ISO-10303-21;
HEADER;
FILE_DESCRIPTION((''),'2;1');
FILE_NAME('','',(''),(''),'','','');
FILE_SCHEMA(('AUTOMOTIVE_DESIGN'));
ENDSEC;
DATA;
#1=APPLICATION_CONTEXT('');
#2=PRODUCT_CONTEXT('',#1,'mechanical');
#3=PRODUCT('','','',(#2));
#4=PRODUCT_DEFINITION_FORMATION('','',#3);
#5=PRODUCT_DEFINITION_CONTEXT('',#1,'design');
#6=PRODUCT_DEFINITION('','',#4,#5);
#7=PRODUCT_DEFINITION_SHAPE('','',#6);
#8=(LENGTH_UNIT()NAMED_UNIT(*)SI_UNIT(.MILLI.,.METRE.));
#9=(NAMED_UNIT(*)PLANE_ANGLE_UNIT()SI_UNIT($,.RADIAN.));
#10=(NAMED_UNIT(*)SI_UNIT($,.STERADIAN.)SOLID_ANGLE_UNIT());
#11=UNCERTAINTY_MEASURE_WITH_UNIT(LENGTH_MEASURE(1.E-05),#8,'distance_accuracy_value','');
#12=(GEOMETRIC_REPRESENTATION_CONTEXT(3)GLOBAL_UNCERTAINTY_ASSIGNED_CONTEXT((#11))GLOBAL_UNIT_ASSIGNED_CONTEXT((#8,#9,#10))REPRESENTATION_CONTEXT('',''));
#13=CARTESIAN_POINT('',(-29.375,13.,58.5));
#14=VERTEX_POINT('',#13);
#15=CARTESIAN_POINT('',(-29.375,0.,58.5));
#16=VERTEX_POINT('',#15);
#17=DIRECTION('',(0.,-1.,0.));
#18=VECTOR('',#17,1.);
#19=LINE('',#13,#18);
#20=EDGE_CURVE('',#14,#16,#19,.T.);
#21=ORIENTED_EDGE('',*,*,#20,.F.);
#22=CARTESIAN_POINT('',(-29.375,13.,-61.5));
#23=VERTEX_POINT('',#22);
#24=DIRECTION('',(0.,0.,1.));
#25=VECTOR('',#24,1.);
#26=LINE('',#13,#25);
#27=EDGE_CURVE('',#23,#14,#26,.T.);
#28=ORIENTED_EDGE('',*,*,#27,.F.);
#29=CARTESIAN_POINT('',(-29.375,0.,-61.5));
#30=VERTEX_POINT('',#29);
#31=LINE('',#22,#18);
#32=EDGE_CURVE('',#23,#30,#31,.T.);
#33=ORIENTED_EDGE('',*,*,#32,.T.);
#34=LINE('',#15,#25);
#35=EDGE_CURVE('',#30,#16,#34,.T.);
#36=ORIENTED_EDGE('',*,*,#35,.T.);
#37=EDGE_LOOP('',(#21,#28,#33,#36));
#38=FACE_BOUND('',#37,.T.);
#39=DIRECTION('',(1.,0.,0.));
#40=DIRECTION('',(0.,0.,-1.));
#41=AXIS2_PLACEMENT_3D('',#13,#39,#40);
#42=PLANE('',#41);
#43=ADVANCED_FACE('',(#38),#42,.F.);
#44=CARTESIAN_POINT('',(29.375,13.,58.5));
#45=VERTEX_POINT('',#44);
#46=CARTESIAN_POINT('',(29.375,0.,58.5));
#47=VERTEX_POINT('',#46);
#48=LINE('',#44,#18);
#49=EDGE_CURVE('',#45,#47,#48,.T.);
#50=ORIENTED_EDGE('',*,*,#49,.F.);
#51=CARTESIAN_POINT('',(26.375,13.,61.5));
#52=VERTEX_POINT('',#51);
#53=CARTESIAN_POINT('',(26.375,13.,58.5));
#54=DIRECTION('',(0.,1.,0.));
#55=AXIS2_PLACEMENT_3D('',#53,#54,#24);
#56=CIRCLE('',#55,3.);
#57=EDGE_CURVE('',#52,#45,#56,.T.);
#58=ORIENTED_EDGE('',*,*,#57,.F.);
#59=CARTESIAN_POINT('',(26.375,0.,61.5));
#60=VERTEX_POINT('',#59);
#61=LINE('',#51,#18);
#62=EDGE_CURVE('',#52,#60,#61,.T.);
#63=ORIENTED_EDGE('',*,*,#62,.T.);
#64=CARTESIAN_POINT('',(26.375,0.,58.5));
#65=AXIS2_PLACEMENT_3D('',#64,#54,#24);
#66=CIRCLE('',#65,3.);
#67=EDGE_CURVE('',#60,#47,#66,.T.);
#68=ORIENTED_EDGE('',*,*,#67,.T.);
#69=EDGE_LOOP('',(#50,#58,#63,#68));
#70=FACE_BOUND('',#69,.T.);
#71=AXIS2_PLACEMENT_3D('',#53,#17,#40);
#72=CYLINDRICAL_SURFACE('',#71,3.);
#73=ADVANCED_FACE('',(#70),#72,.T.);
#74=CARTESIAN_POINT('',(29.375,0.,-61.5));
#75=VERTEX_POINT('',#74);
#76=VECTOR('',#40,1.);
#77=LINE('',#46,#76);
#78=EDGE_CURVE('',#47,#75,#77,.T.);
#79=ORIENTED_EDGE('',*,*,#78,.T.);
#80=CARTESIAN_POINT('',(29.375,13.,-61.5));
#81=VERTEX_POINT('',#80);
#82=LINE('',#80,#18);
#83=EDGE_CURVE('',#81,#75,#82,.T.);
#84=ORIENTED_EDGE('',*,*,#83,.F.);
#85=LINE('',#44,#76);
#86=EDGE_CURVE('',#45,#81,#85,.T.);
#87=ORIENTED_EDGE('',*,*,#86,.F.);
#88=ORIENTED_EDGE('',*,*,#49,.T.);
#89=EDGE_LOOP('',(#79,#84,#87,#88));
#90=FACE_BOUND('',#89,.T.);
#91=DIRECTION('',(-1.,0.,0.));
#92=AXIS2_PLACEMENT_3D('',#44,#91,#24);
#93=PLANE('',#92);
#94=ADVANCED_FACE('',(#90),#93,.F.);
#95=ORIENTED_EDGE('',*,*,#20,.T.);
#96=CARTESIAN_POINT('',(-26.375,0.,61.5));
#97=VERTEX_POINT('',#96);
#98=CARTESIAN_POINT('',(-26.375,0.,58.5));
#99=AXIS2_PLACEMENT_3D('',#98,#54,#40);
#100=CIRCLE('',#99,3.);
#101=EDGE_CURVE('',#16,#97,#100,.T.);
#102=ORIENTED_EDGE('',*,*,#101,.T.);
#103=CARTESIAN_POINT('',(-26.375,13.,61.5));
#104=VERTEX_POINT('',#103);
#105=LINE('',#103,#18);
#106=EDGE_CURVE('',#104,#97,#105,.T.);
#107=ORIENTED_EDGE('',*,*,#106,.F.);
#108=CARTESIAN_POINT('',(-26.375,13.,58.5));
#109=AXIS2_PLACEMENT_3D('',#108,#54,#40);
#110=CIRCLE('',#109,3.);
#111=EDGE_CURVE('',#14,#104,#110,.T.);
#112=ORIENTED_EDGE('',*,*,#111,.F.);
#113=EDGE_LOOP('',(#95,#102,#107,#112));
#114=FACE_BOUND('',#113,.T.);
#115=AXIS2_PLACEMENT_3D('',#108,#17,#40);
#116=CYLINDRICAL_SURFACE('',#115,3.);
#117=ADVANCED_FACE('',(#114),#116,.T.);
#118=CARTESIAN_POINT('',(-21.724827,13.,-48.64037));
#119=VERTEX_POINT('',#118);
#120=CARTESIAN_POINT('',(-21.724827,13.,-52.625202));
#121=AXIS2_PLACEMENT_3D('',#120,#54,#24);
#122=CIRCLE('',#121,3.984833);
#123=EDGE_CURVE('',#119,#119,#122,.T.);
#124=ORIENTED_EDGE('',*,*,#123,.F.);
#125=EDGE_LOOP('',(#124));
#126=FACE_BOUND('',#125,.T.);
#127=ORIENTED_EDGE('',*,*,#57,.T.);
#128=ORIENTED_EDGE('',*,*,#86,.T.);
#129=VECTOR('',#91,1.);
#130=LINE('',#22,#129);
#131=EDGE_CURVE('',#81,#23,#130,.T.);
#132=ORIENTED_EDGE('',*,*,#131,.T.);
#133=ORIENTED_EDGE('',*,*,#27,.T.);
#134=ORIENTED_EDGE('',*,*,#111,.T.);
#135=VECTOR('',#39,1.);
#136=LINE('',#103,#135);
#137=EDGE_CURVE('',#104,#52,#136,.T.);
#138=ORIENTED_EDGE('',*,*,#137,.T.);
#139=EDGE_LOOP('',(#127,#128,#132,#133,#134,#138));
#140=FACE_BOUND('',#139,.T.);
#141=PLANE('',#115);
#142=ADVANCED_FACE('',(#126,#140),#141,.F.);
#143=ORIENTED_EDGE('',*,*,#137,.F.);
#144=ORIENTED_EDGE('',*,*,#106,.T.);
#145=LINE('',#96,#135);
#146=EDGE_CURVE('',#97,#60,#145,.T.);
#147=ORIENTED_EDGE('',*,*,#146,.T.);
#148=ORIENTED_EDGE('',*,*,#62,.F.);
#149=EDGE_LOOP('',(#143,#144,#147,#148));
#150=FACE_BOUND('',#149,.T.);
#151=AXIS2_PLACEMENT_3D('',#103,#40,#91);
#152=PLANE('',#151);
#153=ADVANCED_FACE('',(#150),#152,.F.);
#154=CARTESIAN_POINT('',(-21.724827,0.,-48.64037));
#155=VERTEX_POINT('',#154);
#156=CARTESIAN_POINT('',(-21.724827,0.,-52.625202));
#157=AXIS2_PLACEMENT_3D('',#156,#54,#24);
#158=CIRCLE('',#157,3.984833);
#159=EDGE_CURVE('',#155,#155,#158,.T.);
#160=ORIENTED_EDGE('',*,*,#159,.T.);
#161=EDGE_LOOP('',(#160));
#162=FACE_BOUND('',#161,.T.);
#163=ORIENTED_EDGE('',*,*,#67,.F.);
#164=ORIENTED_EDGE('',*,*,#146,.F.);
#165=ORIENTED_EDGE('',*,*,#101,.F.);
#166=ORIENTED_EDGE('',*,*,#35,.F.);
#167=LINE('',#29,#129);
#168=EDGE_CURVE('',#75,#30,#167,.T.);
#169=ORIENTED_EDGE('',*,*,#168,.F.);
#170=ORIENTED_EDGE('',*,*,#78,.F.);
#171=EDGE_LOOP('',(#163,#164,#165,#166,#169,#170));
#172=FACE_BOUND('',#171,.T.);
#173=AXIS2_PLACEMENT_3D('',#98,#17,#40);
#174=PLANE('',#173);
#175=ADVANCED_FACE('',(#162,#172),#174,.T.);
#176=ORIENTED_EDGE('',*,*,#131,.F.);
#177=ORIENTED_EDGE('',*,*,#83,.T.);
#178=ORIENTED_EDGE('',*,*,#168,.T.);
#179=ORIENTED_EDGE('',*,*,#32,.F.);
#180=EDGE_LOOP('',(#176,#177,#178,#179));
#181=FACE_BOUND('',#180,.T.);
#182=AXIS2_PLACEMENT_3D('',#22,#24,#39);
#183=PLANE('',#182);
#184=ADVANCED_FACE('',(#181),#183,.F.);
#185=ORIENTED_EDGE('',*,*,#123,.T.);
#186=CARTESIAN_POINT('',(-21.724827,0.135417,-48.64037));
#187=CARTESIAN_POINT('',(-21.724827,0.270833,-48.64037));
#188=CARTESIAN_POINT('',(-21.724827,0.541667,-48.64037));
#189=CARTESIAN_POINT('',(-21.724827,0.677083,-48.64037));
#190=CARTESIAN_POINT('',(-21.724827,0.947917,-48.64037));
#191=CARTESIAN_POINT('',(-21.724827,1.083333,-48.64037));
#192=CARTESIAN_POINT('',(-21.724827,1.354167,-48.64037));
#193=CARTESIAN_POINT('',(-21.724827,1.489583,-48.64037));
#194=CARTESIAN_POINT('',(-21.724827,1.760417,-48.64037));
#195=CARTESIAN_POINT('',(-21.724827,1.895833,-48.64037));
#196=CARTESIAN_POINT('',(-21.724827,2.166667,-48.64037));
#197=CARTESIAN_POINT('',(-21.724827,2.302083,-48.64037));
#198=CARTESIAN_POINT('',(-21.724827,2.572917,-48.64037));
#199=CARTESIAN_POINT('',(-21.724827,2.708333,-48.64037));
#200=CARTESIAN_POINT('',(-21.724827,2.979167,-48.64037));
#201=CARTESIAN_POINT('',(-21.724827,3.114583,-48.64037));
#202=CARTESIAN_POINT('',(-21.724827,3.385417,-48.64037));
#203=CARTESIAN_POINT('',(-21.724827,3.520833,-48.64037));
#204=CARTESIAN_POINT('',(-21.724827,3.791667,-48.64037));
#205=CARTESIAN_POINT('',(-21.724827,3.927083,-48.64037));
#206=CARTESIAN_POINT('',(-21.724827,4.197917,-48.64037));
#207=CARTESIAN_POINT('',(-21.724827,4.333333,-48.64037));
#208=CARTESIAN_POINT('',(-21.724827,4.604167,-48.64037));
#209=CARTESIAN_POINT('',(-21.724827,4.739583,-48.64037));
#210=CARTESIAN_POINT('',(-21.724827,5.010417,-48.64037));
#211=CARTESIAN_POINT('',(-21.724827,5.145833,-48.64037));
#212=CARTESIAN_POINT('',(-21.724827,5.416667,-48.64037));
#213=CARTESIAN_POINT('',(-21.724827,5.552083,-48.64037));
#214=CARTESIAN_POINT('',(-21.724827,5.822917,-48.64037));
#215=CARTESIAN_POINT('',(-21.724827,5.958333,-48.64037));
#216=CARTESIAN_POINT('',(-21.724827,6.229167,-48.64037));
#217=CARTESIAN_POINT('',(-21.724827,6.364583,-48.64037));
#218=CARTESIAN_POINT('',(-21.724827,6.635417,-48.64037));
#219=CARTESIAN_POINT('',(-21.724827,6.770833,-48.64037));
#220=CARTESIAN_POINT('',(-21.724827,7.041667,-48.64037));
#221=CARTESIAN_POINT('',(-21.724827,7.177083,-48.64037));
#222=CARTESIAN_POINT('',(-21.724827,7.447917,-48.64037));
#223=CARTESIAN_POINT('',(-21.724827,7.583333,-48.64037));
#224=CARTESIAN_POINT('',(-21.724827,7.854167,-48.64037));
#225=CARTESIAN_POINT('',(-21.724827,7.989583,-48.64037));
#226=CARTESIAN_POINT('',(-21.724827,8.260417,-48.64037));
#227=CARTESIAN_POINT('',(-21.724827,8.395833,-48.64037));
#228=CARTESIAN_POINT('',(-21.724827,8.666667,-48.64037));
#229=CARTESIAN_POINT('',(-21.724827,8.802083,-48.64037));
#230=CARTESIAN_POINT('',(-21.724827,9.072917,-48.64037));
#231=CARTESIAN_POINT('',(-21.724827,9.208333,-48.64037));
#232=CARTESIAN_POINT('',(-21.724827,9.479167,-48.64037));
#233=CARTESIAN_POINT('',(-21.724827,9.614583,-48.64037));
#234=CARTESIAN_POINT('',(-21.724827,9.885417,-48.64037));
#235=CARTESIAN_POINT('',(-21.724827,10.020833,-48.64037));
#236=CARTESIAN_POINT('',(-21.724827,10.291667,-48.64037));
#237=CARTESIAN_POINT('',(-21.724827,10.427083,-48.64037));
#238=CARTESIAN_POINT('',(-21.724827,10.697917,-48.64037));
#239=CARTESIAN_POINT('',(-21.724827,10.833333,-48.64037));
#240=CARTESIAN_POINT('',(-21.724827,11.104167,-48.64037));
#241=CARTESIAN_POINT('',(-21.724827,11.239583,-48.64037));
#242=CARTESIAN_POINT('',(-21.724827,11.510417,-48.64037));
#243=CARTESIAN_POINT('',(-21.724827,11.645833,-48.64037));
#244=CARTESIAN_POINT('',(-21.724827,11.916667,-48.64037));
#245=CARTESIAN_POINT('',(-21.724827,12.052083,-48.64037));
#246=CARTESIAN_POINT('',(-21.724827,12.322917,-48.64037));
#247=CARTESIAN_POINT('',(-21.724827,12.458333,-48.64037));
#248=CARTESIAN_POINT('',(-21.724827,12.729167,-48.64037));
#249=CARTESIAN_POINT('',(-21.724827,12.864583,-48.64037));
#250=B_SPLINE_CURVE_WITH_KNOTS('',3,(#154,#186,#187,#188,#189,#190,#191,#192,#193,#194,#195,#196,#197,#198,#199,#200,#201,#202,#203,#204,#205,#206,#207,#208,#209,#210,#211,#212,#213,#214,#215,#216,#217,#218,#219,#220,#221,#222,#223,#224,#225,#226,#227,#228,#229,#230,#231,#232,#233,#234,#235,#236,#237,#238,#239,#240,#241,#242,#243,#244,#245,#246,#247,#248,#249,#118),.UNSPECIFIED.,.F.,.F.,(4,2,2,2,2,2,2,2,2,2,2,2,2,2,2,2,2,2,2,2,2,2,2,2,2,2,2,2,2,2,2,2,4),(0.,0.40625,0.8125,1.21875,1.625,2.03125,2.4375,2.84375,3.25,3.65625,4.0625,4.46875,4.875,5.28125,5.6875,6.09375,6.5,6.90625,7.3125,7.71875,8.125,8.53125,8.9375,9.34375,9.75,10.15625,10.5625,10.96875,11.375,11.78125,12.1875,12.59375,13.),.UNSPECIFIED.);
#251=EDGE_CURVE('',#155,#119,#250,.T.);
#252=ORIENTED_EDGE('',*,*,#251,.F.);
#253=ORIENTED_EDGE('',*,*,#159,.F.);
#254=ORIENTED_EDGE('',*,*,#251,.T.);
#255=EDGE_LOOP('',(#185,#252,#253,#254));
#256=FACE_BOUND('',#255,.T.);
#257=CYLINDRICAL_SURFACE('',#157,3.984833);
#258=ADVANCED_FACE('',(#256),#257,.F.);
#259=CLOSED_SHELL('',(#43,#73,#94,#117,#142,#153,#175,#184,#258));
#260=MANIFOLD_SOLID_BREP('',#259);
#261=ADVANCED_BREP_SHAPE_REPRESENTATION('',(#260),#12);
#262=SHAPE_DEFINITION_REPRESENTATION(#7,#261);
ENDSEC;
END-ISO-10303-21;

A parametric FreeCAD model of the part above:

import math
import FreeCAD as App
import Part
import Sketcher
Q = App.Units.Quantity

doc = App.newDocument("Part")
body = doc.addObject("PartDesign::Body", "Body")

# Sketch on XZ plane
sketch1 = body.newObject("Sketcher::SketchObject", "Sketch")
sketch1.AttachmentSupport = (doc.getObject("XZ_Plane"), [""])
sketch1.MapMode = "FlatFace"
sketch1.addGeometry([
    Part.LineSegment(App.Vector(-26.4, 61.5, 0), App.Vector(26.4, 61.5, 0)),  # 0
    Part.ArcOfCircle(Part.Circle(App.Vector(26.4, 58.5, 0), App.Vector(0, 0, 1), 3), math.radians(0), math.radians(90)),  # 1
    Part.LineSegment(App.Vector(29.4, 58.5, 0), App.Vector(29.4, -61.5, 0)),  # 2
    Part.LineSegment(App.Vector(29.4, -61.5, 0), App.Vector(-29.4, -61.5, 0)),  # 3
    Part.LineSegment(App.Vector(-29.4, -61.5, 0), App.Vector(-29.4, 58.5, 0)),  # 4
    Part.ArcOfCircle(Part.Circle(App.Vector(-26.4, 58.5, 0), App.Vector(0, 0, 1), 3), math.radians(90), math.radians(180)),  # 5
], False)
sketch1.addConstraint([
    Sketcher.Constraint("Tangent", 0, 2, 1, 2),
    Sketcher.Constraint("Tangent", 1, 1, 2, 1),
    Sketcher.Constraint("Coincident", 2, 2, 3, 1),
    Sketcher.Constraint("Coincident", 3, 2, 4, 1),
    Sketcher.Constraint("Tangent", 4, 2, 5, 2),
    Sketcher.Constraint("Tangent", 5, 1, 0, 1),
    Sketcher.Constraint("Horizontal", 0),
    Sketcher.Constraint("Vertical", 2),
    Sketcher.Constraint("Horizontal", 3),
    Sketcher.Constraint("Vertical", 4),
    Sketcher.Constraint("Equal", 1, 5),
    Sketcher.Constraint("Radius", 1, Q("3 mm")),
    Sketcher.Constraint("DistanceY", 2, 2, 2, 1, Q("120 mm")),
    Sketcher.Constraint("DistanceX", 0, 1, 0, 2, Q("52.75 mm")),
    Sketcher.Constraint("DistanceY", -1, 1, 1, 3, Q("58.5 mm")),
    Sketcher.Constraint("DistanceX", -1, 1, 1, 3, Q("26.375 mm")),
])
pad1 = body.newObject("PartDesign::Pad", "Pad")
pad1.Profile = sketch1
pad1.Length = 13
pad1.Reversed = True

# Sketch on XZ plane
sketch2 = body.newObject("Sketcher::SketchObject", "Sketch001")
sketch2.AttachmentSupport = (doc.getObject("XZ_Plane"), [""])
sketch2.MapMode = "FlatFace"
sketch2.AttachmentOffset = App.Placement(App.Vector(0, 0, -13), App.Rotation())
sketch2.addGeometry(Part.Circle(App.Vector(-21.7, -52.6, 0), App.Vector(0, 0, 1), 4), False)
sketch2.addConstraint([
    Sketcher.Constraint("Diameter", 0, Q("7.969665 mm")),
    Sketcher.Constraint("DistanceX", 0, 3, -1, 1, Q("21.724827 mm")),
    Sketcher.Constraint("DistanceY", 0, 3, -1, 1, Q("52.625202 mm")),
])
pocket1 = body.newObject("PartDesign::Pocket", "Pocket")
pocket1.Profile = sketch2
pocket1.Type = "ThroughAll"
pocket1.Reversed = True

doc.recompute()
